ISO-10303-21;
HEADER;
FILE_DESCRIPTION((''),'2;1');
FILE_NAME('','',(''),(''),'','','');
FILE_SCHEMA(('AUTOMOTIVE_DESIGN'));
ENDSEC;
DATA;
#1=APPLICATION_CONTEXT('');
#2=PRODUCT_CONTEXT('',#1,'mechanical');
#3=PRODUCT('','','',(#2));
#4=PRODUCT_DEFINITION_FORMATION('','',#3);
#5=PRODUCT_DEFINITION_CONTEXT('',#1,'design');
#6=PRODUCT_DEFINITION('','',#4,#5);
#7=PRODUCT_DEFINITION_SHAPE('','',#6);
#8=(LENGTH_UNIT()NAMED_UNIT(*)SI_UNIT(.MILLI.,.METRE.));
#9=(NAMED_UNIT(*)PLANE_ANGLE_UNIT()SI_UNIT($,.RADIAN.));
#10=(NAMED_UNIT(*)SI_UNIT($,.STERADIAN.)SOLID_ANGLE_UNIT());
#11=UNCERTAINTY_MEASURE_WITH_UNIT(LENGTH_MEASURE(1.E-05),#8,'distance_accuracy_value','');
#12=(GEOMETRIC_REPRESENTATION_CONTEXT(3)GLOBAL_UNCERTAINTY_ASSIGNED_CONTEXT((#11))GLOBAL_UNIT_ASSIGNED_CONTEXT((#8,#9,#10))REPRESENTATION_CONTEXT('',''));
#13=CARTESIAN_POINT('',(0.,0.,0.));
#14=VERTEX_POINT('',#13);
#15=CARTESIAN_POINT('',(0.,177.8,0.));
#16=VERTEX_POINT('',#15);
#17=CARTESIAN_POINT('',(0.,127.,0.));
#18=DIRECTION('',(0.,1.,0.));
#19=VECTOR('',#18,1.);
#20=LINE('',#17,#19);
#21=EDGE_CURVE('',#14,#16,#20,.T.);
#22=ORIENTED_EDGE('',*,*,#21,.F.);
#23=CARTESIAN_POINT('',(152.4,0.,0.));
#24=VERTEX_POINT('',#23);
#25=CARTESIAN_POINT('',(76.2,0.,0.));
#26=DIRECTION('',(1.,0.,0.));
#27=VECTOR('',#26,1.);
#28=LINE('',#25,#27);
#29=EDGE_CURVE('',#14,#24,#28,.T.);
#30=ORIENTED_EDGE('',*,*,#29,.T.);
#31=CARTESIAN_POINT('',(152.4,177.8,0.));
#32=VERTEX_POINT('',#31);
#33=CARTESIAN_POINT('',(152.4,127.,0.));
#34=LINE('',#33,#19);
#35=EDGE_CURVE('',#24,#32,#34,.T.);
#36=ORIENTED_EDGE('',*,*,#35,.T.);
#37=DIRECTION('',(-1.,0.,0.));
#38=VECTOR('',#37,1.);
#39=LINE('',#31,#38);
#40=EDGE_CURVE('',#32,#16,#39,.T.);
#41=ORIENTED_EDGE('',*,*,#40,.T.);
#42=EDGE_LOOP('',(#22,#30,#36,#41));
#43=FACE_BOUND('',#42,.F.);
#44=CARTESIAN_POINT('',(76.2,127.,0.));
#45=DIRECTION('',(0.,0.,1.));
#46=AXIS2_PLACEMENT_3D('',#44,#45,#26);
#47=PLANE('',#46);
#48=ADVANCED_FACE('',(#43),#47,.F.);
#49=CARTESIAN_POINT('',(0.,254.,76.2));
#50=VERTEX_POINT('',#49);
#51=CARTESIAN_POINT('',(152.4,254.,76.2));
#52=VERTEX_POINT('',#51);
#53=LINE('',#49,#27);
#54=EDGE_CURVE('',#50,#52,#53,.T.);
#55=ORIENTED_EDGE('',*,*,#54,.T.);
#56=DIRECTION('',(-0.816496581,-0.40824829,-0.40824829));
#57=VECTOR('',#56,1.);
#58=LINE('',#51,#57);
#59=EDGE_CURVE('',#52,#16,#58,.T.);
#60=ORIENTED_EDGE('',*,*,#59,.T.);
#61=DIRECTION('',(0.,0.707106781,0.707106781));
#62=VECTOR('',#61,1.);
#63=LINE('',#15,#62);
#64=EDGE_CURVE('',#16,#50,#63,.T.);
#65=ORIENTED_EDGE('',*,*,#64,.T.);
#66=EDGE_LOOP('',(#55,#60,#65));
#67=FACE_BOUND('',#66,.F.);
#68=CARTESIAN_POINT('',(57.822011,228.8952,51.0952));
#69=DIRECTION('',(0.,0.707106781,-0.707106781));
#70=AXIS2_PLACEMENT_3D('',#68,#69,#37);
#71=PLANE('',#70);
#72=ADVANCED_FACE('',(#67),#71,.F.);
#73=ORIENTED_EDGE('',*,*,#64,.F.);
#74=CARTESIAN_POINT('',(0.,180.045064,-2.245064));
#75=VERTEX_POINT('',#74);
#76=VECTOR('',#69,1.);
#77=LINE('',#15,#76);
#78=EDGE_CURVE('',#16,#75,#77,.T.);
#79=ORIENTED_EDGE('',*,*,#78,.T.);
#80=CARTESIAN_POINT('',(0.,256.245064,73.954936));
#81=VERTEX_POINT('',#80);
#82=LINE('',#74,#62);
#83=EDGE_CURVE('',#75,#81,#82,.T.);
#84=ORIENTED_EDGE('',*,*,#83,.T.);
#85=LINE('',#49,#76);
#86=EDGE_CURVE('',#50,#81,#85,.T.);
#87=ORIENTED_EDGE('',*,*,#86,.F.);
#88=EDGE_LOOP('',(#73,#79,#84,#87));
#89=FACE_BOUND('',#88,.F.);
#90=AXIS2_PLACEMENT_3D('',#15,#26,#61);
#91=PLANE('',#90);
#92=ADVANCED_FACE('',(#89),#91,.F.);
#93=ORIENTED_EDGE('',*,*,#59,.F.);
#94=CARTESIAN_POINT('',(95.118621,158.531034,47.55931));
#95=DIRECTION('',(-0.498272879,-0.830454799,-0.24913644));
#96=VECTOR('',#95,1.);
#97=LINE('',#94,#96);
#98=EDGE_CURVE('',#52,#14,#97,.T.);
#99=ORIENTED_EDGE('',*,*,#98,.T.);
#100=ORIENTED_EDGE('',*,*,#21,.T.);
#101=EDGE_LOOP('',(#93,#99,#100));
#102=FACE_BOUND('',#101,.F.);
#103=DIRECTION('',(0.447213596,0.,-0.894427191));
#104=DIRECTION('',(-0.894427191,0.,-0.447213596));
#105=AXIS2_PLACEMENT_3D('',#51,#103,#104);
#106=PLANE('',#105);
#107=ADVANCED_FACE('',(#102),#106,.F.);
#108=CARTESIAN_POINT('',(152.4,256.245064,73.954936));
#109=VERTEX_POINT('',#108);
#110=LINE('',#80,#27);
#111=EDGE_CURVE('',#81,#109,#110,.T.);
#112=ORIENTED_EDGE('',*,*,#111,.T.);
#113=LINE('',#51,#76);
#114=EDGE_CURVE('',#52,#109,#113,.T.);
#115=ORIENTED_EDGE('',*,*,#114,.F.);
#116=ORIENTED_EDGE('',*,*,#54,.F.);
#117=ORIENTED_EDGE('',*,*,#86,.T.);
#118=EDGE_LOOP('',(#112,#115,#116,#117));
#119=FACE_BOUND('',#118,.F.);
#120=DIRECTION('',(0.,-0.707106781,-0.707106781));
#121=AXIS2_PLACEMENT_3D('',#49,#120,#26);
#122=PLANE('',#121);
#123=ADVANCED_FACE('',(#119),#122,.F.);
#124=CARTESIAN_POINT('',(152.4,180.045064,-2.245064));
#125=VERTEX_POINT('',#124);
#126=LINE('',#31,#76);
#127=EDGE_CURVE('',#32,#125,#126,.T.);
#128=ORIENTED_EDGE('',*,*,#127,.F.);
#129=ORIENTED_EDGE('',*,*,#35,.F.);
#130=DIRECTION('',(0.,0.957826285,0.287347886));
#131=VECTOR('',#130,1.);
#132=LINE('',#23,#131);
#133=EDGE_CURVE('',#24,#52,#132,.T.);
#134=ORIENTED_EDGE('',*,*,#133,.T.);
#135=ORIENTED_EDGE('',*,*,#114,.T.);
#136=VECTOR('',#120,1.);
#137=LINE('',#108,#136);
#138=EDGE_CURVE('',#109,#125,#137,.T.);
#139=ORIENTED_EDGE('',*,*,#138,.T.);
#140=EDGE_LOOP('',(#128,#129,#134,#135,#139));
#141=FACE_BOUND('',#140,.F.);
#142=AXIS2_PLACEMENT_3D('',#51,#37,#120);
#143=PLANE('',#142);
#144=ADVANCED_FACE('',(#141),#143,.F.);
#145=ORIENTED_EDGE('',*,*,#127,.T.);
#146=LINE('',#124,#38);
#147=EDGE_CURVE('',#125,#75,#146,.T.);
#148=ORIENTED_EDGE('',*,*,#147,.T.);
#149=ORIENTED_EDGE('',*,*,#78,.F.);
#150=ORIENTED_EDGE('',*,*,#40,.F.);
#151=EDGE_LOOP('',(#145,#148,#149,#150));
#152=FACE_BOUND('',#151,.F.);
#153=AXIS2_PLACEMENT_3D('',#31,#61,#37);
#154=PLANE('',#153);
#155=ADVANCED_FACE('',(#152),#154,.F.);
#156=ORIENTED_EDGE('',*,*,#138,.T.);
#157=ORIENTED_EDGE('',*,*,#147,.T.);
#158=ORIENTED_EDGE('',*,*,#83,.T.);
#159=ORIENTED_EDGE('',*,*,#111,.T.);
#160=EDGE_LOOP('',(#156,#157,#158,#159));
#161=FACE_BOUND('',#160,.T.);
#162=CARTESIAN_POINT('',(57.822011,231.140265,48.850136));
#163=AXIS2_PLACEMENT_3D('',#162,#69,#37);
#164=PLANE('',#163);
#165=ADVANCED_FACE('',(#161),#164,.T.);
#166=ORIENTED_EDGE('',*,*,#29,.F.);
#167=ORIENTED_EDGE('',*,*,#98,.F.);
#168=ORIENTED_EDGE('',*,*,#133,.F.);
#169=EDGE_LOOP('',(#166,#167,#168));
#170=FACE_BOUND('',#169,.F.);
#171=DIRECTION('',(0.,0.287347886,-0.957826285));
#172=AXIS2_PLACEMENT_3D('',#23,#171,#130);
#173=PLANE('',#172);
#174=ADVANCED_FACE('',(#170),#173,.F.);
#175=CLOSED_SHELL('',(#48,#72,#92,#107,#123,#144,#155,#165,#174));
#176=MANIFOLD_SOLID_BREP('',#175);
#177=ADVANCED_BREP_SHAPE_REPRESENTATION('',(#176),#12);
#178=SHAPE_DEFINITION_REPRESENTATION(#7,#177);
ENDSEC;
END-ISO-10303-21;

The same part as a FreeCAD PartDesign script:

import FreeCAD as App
import Part
import Sketcher
from FreeCAD import Vector
Q = App.Units.Quantity

doc = App.newDocument("Part")
params = doc.addObject("Spreadsheet::Sheet", "Params")
for row, (alias, value) in enumerate([
    ("sketch1_width", "6 in"),
    ("sketch1_height", "10 in"),
    ("pad1_length", "3 in"),
    ("sketch2_width", "10 in"),
    ("sketch2_height", "3 in"),
    ("sketch3_width", "6 in"),
    ("sketch3_height", "3 in"),
    ("sketch4_width", "3 in"),
    ("sketch5_width", "6 in"),
    ("pad2_length", "0.125 in"),
], start=1):
    params.set(f"A{row}", alias)
    params.set(f"B{row}", "=" + value)
    params.setAlias(f"B{row}", alias)

body = doc.addObject("PartDesign::Body", "Body")

sketch1 = body.newObject("Sketcher::SketchObject", "Sketch")
sketch1.AttachmentSupport = (doc.getObject("XY_Plane"), [""])
sketch1.MapMode = "FlatFace"
sketch1.addGeometry(Part.LineSegment(Vector(0, 254, 0), Vector(0, 0, 0)), False)
sketch1.addGeometry(Part.LineSegment(Vector(0, 0, 0), Vector(152.4, 0, 0)), False)
sketch1.addGeometry(Part.LineSegment(Vector(152.4, 0, 0), Vector(152.4, 254, 0)), False)
sketch1.addGeometry(Part.LineSegment(Vector(152.4, 254, 0), Vector(0, 254, 0)), False)
sketch1.addConstraint(Sketcher.Constraint("Coincident", 0, 2, 1, 1))
sketch1.addConstraint(Sketcher.Constraint("Coincident", 1, 2, 2, 1))
sketch1.addConstraint(Sketcher.Constraint("Coincident", 2, 2, 3, 1))
sketch1.addConstraint(Sketcher.Constraint("Coincident", 3, 2, 0, 1))
sketch1.addConstraint(Sketcher.Constraint("Vertical", 0))
sketch1.addConstraint(Sketcher.Constraint("Horizontal", 1))
sketch1.addConstraint(Sketcher.Constraint("Vertical", 2))
sketch1.addConstraint(Sketcher.Constraint("Horizontal", 3))
sketch1.addConstraint(Sketcher.Constraint("Coincident", 0, 2, -1, 1))
sketch1.addConstraint(Sketcher.Constraint("DistanceX", 1, 1, 1, 2, Q("6 in")))
sketch1.addConstraint(Sketcher.Constraint("DistanceY", 0, 2, 0, 1, Q("10 in")))
sketch1.setExpression("Constraints[9]", "Params.sketch1_width")
sketch1.setExpression("Constraints[10]", "Params.sketch1_height")
pad1 = body.newObject("PartDesign::Pad", "Pad")
pad1.Profile = sketch1
pad1.setExpression("Length", "Params.pad1_length")

sketch2 = body.newObject("Sketcher::SketchObject", "Sketch001")
sketch2.AttachmentSupport = (doc.getObject("YZ_Plane"), [""])
sketch2.MapMode = "FlatFace"
sketch2.AttachmentOffset = App.Placement(Vector(0, 0, 6 * 25.4), App.Rotation())
sketch2.addGeometry(Part.LineSegment(Vector(0, 76.2, 0), Vector(0, 0, 0)), False)
sketch2.addGeometry(Part.LineSegment(Vector(0, 0, 0), Vector(254, 76.2, 0)), False)
sketch2.addGeometry(Part.LineSegment(Vector(254, 76.2, 0), Vector(0, 76.2, 0)), False)
sketch2.addConstraint(Sketcher.Constraint("Coincident", 0, 2, 1, 1))
sketch2.addConstraint(Sketcher.Constraint("Coincident", 1, 2, 2, 1))
sketch2.addConstraint(Sketcher.Constraint("Coincident", 2, 2, 0, 1))
sketch2.addConstraint(Sketcher.Constraint("Vertical", 0))
sketch2.addConstraint(Sketcher.Constraint("Horizontal", 2))
sketch2.addConstraint(Sketcher.Constraint("Coincident", 0, 2, -1, 1))
sketch2.addConstraint(Sketcher.Constraint("DistanceX", 2, 2, 2, 1, Q("10 in")))
sketch2.addConstraint(Sketcher.Constraint("DistanceY", 0, 2, 0, 1, Q("3 in")))
sketch2.setExpression("Constraints[6]", "Params.sketch2_width")
sketch2.setExpression("Constraints[7]", "Params.sketch2_height")
pocket1 = body.newObject("PartDesign::Pocket", "Pocket")
pocket1.Profile = sketch2
pocket1.Type = "ThroughAll"

sketch3 = body.newObject("Sketcher::SketchObject", "Sketch002")
sketch3.AttachmentSupport = (doc.getObject("XZ_Plane"), [""])
sketch3.MapMode = "FlatFace"
sketch3.AttachmentOffset = App.Placement(Vector(0, 0, -10 * 25.4), App.Rotation())
sketch3.addGeometry(Part.LineSegment(Vector(0, 76.2, 0), Vector(152.4, 76.2, 0)), False)
sketch3.addGeometry(Part.LineSegment(Vector(152.4, 76.2, 0), Vector(0, 0, 0)), False)
sketch3.addGeometry(Part.LineSegment(Vector(0, 0, 0), Vector(0, 76.2, 0)), False)
sketch3.addConstraint(Sketcher.Constraint("Coincident", 0, 2, 1, 1))
sketch3.addConstraint(Sketcher.Constraint("Coincident", 1, 2, 2, 1))
sketch3.addConstraint(Sketcher.Constraint("Coincident", 2, 2, 0, 1))
sketch3.addConstraint(Sketcher.Constraint("Horizontal", 0))
sketch3.addConstraint(Sketcher.Constraint("Vertical", 2))
sketch3.addConstraint(Sketcher.Constraint("Coincident", 1, 2, -1, 1))
sketch3.addConstraint(Sketcher.Constraint("DistanceX", 0, 1, 0, 2, Q("6 in")))
sketch3.addConstraint(Sketcher.Constraint("DistanceY", 2, 1, 2, 2, Q("3 in")))
sketch3.setExpression("Constraints[6]", "Params.sketch3_width")
sketch3.setExpression("Constraints[7]", "Params.sketch3_height")
pocket2 = body.newObject("PartDesign::Pocket", "Pocket001")
pocket2.Profile = sketch3
pocket2.Type = "ThroughAll"
pocket2.Reversed = True

sketch4 = body.newObject("Sketcher::SketchObject", "Sketch003")
sketch4.AttachmentSupport = (doc.getObject("YZ_Plane"), [""])
sketch4.MapMode = "FlatFace"
sketch4.AttachmentOffset = App.Placement(Vector(0, 0, 6 * 25.4), App.Rotation())
sketch4.addGeometry(Part.LineSegment(Vector(254, 0, 0), Vector(254, 76.2, 0)), False)
sketch4.addGeometry(Part.LineSegment(Vector(254, 76.2, 0), Vector(177.8, 0, 0)), False)
sketch4.addGeometry(Part.LineSegment(Vector(177.8, 0, 0), Vector(254, 0, 0)), False)
sketch4.addConstraint(Sketcher.Constraint("Coincident", 0, 2, 1, 1))
sketch4.addConstraint(Sketcher.Constraint("Coincident", 1, 2, 2, 1))
sketch4.addConstraint(Sketcher.Constraint("Coincident", 2, 2, 0, 1))
sketch4.addConstraint(Sketcher.Constraint("Vertical", 0))
sketch4.addConstraint(Sketcher.Constraint("Horizontal", 2))
sketch4.addConstraint(Sketcher.Constraint("PointOnObject", 1, 2, -1))
sketch4.addConstraint(Sketcher.Constraint("Equal", 2, 0))
sketch4.addConstraint(Sketcher.Constraint("DistanceX", 2, 1, 2, 2, Q("3 in")))
sketch4.addConstraint(Sketcher.Constraint("DistanceX", -1, 1, 0, 2, Q("10 in")))
sketch4.setExpression("Constraints[7]", "Params.sketch4_width")
pocket3 = body.newObject("PartDesign::Pocket", "Pocket002")
pocket3.Profile = sketch4
pocket3.Type = "ThroughAll"

sketch5 = body.newObject("Sketcher::SketchObject", "Sketch004")
sketch5.Placement = App.Placement(Vector(0, 88.9, -88.9), App.Rotation(Vector(-1, 0, 0), Vector(0, 0.707106781, 0.707106781), Vector(0, 0.707106781, -0.707106781), "ZXY"))
sketch5.addGeometry(Part.LineSegment(Vector(0, 125.723586, 0), Vector(0, 233.486659, 0)), False)
sketch5.addGeometry(Part.LineSegment(Vector(0, 233.486659, 0), Vector(-152.4, 233.486659, 0)), False)
sketch5.addGeometry(Part.LineSegment(Vector(-152.4, 233.486659, 0), Vector(-152.4, 125.723586, 0)), False)
sketch5.addGeometry(Part.LineSegment(Vector(-152.4, 125.723586, 0), Vector(0, 125.723586, 0)), False)
sketch5.addConstraint(Sketcher.Constraint("Coincident", 0, 2, 1, 1))
sketch5.addConstraint(Sketcher.Constraint("Coincident", 1, 2, 2, 1))
sketch5.addConstraint(Sketcher.Constraint("Coincident", 2, 2, 3, 1))
sketch5.addConstraint(Sketcher.Constraint("Coincident", 3, 2, 0, 1))
sketch5.addConstraint(Sketcher.Constraint("Vertical", 0))
sketch5.addConstraint(Sketcher.Constraint("Horizontal", 1))
sketch5.addConstraint(Sketcher.Constraint("Vertical", 2))
sketch5.addConstraint(Sketcher.Constraint("Horizontal", 3))
sketch5.addConstraint(Sketcher.Constraint("PointOnObject", 0, 2, -2))
sketch5.addConstraint(Sketcher.Constraint("DistanceX", 1, 2, 1, 1, Q("6 in")))
sketch5.addConstraint(Sketcher.Constraint("DistanceY", 0, 1, 0, 2, 107.763073))
sketch5.addConstraint(Sketcher.Constraint("DistanceY", -1, 1, 0, 2, 233.486659))
sketch5.setExpression("Constraints[9]", "Params.sketch5_width")
pad2 = body.newObject("PartDesign::Pad", "Pad001")
pad2.Profile = sketch5
pad2.setExpression("Length", "Params.pad2_length")

doc.recompute()
